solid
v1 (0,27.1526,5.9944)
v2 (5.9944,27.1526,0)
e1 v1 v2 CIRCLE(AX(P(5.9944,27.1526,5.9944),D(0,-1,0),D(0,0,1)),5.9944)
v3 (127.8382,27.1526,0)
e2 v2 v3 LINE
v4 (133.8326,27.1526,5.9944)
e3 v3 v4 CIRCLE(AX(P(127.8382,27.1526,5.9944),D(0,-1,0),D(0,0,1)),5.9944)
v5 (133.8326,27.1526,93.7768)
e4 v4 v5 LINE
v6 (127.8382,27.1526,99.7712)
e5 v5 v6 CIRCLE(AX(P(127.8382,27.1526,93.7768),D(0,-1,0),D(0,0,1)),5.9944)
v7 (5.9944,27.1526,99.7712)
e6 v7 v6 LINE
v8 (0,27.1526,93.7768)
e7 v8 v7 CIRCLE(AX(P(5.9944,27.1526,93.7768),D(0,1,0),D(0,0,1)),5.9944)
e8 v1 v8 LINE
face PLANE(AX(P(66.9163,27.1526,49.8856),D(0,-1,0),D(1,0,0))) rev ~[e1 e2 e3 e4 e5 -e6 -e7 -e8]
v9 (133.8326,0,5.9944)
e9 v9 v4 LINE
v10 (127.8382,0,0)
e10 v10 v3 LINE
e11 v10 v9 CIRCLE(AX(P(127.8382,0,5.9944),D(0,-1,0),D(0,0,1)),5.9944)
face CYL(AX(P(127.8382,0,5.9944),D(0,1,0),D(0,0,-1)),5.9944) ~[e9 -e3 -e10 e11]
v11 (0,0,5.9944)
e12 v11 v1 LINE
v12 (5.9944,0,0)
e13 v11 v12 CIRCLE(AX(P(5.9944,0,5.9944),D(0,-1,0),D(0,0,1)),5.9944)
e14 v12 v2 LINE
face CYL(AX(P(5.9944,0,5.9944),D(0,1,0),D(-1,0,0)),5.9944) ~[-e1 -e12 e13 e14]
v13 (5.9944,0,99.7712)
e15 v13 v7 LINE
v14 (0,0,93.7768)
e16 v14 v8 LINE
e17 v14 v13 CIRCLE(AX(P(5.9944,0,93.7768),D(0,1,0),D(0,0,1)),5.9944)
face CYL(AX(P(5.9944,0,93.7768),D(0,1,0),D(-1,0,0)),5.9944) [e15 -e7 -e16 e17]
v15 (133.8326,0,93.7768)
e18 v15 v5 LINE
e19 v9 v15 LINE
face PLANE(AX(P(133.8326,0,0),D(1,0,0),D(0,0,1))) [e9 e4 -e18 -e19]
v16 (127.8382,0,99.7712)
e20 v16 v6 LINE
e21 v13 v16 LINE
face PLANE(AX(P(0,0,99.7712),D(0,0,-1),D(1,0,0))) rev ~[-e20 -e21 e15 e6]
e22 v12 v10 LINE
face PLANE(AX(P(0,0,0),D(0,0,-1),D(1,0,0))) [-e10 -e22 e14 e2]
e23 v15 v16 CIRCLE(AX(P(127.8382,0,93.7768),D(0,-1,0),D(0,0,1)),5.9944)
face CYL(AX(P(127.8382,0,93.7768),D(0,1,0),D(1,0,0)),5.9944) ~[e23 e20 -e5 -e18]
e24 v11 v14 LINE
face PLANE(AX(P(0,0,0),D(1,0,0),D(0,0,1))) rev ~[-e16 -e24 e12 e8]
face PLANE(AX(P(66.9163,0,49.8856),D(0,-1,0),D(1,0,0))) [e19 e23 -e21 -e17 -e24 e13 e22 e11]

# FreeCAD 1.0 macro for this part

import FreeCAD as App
import Part
import Sketcher
Q = App.Units.Quantity


def edges_at(feature, points):
    """Names of the edges that pass closest to the given points."""
    edges = feature.Shape.Edges
    near = lambda p: min(range(len(edges)), key=lambda i: edges[i].distToShape(Part.Vertex(*p))[0])
    return sorted({f"Edge{near(p) + 1}" for p in points})


def add_polygon(sketch, points):
    """Adds a closed chain of lines whose ends are joined by coincident constraints."""
    first, n = sketch.GeometryCount, len(points)
    for a, b in zip(points, points[1:] + points[:1]):
        sketch.addGeometry(Part.LineSegment(App.Vector(*a, 0), App.Vector(*b, 0)), False)
    for i in range(n):
        sketch.addConstraint(Sketcher.Constraint("Coincident", first + i, 2, first + (i + 1) % n, 1))

doc = App.newDocument("Part")
body = doc.addObject("PartDesign::Body", "Body")

sketch1 = doc.addObject("Sketcher::SketchObject", "Sketch")
body.addObject(sketch1)
sketch1.AttachmentSupport = (doc.XZ_Plane, [""])
sketch1.MapMode = "FlatFace"
add_polygon(sketch1, [(0, 100), (0, 0), (134, 0), (134, 100)])
sketch1.addConstraint([
    Sketcher.Constraint("Vertical", 0),
    Sketcher.Constraint("Horizontal", 1),
    Sketcher.Constraint("Vertical", 2),
    Sketcher.Constraint("Horizontal", 3),
    Sketcher.Constraint("Coincident", 0, 2, -1, 1),
    Sketcher.Constraint("DistanceX", 1, 1, 1, 2, Q("5.269 in")),
    Sketcher.Constraint("DistanceY", 0, 2, 0, 1, Q("3.928 in")),
])
pad1 = doc.addObject("PartDesign::Pad", "Pad")
body.addObject(pad1)
pad1.Profile = sketch1
pad1.Length = Q("1.069 in")
pad1.Reversed = True
doc.recompute()

fillet = doc.addObject("PartDesign::Fillet", "Fillet")
body.addObject(fillet)
fillet.Base = (pad1, edges_at(pad1, [
    (133.833, 13.576, 99.771),
    (133.833, 13.576, 0),
    (0, 13.576, 0),
    (0, 13.576, 99.771),
]))
fillet.Radius = Q("0.236 in")

doc.recompute()
